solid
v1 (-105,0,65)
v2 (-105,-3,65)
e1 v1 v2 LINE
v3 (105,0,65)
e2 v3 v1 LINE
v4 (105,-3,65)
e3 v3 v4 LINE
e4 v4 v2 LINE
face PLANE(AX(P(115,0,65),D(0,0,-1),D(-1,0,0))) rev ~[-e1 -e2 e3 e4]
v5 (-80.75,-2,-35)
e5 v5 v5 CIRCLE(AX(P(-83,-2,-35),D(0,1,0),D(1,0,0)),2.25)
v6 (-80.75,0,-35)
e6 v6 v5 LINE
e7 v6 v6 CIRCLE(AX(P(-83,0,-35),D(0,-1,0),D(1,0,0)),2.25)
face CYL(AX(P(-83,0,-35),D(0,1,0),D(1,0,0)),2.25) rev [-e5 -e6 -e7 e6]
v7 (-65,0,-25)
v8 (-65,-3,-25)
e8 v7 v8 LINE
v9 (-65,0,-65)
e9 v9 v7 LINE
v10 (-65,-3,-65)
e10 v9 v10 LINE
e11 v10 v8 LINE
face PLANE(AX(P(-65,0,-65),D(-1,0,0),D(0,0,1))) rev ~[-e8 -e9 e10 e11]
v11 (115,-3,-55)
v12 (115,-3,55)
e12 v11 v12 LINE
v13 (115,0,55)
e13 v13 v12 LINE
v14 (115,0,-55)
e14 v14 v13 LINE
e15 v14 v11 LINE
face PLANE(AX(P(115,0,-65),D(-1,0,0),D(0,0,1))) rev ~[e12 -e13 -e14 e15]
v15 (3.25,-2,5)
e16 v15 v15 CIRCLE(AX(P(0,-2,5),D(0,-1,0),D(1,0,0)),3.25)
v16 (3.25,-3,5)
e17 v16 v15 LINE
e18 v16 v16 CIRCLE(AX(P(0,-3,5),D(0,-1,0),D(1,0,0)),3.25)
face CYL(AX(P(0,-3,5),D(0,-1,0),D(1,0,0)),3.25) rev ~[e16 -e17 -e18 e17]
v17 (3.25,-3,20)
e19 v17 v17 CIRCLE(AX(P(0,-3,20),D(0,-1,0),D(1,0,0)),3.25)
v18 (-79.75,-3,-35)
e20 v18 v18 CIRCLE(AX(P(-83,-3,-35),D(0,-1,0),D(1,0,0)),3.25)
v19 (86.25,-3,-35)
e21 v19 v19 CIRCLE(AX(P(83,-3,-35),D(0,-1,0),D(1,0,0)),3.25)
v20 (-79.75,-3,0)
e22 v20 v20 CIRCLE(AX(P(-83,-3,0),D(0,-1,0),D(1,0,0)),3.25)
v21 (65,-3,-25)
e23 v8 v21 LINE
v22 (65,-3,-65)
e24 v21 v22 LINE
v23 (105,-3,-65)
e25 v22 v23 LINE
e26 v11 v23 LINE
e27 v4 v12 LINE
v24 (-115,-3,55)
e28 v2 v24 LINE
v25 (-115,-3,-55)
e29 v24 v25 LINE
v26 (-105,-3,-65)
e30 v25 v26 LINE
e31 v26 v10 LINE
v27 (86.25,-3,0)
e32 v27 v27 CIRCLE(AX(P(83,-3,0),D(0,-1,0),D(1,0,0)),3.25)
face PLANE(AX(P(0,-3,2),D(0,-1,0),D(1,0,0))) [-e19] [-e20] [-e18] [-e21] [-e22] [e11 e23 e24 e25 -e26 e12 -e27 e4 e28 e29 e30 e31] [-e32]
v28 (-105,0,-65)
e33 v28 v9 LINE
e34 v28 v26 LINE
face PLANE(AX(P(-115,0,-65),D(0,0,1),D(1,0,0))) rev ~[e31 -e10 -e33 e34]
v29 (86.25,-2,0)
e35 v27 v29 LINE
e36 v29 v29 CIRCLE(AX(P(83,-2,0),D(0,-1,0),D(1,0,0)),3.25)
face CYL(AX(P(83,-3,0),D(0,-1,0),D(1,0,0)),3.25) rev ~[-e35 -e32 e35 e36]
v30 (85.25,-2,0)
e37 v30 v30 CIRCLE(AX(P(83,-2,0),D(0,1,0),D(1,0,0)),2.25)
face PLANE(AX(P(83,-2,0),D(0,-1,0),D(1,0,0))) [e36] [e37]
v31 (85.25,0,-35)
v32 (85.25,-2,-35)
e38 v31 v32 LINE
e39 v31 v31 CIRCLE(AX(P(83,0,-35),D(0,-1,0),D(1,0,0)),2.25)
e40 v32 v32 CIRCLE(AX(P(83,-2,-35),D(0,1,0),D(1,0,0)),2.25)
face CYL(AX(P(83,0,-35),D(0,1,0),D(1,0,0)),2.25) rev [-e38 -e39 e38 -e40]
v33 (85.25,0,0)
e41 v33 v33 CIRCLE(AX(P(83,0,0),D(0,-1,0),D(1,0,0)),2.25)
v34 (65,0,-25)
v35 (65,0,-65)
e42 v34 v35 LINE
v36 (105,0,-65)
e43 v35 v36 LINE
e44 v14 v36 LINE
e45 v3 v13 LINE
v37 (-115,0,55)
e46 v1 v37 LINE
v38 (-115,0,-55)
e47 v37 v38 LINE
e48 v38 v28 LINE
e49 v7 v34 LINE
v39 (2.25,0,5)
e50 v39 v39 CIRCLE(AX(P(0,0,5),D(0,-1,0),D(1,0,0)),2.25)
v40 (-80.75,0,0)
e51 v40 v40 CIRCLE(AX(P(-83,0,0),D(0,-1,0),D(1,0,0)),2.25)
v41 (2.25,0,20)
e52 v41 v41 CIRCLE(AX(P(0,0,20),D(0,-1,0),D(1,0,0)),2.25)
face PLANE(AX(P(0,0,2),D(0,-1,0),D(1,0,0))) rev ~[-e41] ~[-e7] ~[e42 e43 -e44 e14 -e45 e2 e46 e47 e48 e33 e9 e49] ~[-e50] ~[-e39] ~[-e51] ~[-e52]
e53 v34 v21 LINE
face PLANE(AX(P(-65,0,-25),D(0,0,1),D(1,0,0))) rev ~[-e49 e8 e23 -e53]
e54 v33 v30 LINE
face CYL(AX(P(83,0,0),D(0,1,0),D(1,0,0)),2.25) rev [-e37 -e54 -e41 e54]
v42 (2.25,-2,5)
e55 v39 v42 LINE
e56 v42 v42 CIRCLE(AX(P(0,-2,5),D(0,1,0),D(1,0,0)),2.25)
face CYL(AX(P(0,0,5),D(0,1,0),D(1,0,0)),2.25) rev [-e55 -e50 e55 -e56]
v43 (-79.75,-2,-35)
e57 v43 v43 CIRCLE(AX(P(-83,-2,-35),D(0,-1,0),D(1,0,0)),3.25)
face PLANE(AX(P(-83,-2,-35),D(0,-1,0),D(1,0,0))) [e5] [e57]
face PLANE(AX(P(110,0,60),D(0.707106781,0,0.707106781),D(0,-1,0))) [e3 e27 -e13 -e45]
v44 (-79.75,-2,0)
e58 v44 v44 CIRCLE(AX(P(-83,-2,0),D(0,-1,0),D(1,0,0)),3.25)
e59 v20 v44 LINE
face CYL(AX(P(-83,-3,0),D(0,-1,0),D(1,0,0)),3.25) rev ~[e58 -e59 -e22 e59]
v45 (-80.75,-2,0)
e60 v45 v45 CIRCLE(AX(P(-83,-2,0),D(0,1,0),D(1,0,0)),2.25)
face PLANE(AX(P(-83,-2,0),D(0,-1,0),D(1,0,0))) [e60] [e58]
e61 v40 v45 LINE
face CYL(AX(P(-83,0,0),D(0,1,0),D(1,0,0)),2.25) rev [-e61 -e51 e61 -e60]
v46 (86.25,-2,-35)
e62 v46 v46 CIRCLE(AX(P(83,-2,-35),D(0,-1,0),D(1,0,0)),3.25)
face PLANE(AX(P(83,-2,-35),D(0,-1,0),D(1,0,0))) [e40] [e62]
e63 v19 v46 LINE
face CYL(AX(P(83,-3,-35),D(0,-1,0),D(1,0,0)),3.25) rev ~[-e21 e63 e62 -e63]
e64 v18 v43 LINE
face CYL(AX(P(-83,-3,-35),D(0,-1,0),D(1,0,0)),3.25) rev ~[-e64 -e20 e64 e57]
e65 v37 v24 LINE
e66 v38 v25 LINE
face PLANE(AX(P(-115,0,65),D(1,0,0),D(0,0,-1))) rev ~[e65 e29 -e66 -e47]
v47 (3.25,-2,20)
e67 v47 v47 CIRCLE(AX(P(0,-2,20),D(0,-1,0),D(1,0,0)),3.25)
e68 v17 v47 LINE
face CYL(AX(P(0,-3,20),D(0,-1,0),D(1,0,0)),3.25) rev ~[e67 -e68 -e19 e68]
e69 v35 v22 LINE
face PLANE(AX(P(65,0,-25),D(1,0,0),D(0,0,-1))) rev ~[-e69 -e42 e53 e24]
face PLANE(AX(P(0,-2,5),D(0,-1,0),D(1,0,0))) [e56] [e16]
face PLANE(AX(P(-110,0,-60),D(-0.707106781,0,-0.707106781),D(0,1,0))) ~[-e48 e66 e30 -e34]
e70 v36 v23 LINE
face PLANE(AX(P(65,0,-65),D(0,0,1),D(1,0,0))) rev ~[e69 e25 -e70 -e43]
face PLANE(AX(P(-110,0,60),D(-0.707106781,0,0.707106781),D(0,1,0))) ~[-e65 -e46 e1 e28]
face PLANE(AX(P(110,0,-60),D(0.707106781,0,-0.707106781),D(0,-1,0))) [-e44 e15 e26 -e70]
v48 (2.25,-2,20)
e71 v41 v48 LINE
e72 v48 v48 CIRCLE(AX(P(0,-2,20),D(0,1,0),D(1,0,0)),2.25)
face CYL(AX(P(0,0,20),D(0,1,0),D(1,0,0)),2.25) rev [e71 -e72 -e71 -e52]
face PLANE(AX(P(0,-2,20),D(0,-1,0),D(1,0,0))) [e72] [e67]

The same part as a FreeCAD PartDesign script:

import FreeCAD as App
import Part
import Sketcher

V = App.Vector


def edges_at(feature, points):
    """Names of the edges that pass closest to the given points."""
    edges = feature.Shape.Edges
    near = lambda p: min(range(len(edges)), key=lambda i: edges[i].distToShape(Part.Vertex(*p))[0])
    return sorted({f"Edge{near(p) + 1}" for p in points})

doc = App.newDocument("Part")
params = doc.addObject("Spreadsheet::Sheet", "Params")
for row, (alias, value) in enumerate([
    ("sketch1_diameter", "4.5 mm"),
    ("sketch1_width", "230 mm"),
    ("sketch1_width2", "50 mm"),
    ("sketch1_height", "40 mm"),
    ("pad1_length", "3 mm"),
    ("chamfer_size", "10 mm"),
    ("sketch2_diameter", "6.5 mm"),
    ("pocket1_length", "1 mm"),
], start=1):
    params.set(f"A{row}", alias)
    params.set(f"B{row}", "=" + value)
    params.setAlias(f"B{row}", alias)

body = doc.addObject("PartDesign::Body", "Body")

# Sketch on XZ plane
sketch1 = body.newObject("Sketcher::SketchObject", "Sketch")
sketch1.AttachmentSupport = (doc.getObject("XZ_Plane"), [""])
sketch1.MapMode = "FlatFace"
sketch1.addGeometry(Part.LineSegment(V(115, 65, 0), V(-115, 65, 0)), False)
sketch1.addGeometry(Part.LineSegment(V(-115, 65, 0), V(-115, -65, 0)), False)
sketch1.addGeometry(Part.LineSegment(V(-115, -65, 0), V(-65, -65, 0)), False)
sketch1.addGeometry(Part.LineSegment(V(-65, -65, 0), V(-65, -25, 0)), False)
sketch1.addGeometry(Part.LineSegment(V(-65, -25, 0), V(65, -25, 0)), False)
sketch1.addGeometry(Part.LineSegment(V(65, -25, 0), V(65, -65, 0)), False)
sketch1.addGeometry(Part.LineSegment(V(65, -65, 0), V(115, -65, 0)), False)
sketch1.addGeometry(Part.LineSegment(V(115, -65, 0), V(115, 65, 0)), False)
sketch1.addGeometry(Part.Circle(V(-83, -35, 0), V(0, 0, 1), 2.25), False)
sketch1.addGeometry(Part.Circle(V(83, -35, 0), V(0, 0, 1), 2.25), False)
sketch1.addGeometry(Part.Circle(V(-83, 0, 0), V(0, 0, 1), 2.25), False)
sketch1.addGeometry(Part.Circle(V(0, 5, 0), V(0, 0, 1), 2.25), False)
sketch1.addGeometry(Part.Circle(V(83, 0, 0), V(0, 0, 1), 2.25), False)
sketch1.addGeometry(Part.Circle(V(0, 20, 0), V(0, 0, 1), 2.25), False)
sketch1.addConstraint(Sketcher.Constraint("Coincident", 0, 2, 1, 1))
sketch1.addConstraint(Sketcher.Constraint("Coincident", 1, 2, 2, 1))
sketch1.addConstraint(Sketcher.Constraint("Coincident", 2, 2, 3, 1))
sketch1.addConstraint(Sketcher.Constraint("Coincident", 3, 2, 4, 1))
sketch1.addConstraint(Sketcher.Constraint("Coincident", 4, 2, 5, 1))
sketch1.addConstraint(Sketcher.Constraint("Coincident", 5, 2, 6, 1))
sketch1.addConstraint(Sketcher.Constraint("Coincident", 6, 2, 7, 1))
sketch1.addConstraint(Sketcher.Constraint("Coincident", 7, 2, 0, 1))
sketch1.addConstraint(Sketcher.Constraint("Horizontal", 0))
sketch1.addConstraint(Sketcher.Constraint("Vertical", 1))
sketch1.addConstraint(Sketcher.Constraint("Horizontal", 2))
sketch1.addConstraint(Sketcher.Constraint("Vertical", 3))
sketch1.addConstraint(Sketcher.Constraint("Horizontal", 4))
sketch1.addConstraint(Sketcher.Constraint("Vertical", 5))
sketch1.addConstraint(Sketcher.Constraint("Horizontal", 6))
sketch1.addConstraint(Sketcher.Constraint("Vertical", 7))
sketch1.addConstraint(Sketcher.Constraint("Equal", 8, 9))
sketch1.addConstraint(Sketcher.Constraint("Equal", 9, 10))
sketch1.addConstraint(Sketcher.Constraint("Equal", 10, 11))
sketch1.addConstraint(Sketcher.Constraint("Equal", 11, 12))
sketch1.addConstraint(Sketcher.Constraint("Equal", 12, 13))
sketch1.addConstraint(Sketcher.Constraint("Symmetric", 10, 3, 12, 3, -1, 1))
sketch1.addConstraint(Sketcher.Constraint("Symmetric", 0, 2, 6, 2, -1, 1))
sketch1.addConstraint(Sketcher.Constraint("Symmetric", 8, 3, 9, 3, -2))
sketch1.addConstraint(Sketcher.Constraint("Symmetric", 2, 2, 5, 2, -2))
sketch1.addConstraint(Sketcher.Constraint("PointOnObject", 10, 3, -1))
sketch1.addConstraint(Sketcher.Constraint("PointOnObject", 11, 3, -2))
sketch1.addConstraint(Sketcher.Constraint("PointOnObject", 13, 3, -2))
sketch1.addConstraint(Sketcher.Constraint("Vertical", 8, 3, 10, 3))
sketch1.addConstraint(Sketcher.Constraint("Equal", 4, 1))
sketch1.addConstraint(Sketcher.Constraint("Diameter", 8, 4.5))
sketch1.addConstraint(Sketcher.Constraint("DistanceX", 0, 2, 0, 1, 230.0))
sketch1.addConstraint(Sketcher.Constraint("DistanceX", 2, 1, 2, 2, 50.0))
sketch1.addConstraint(Sketcher.Constraint("DistanceY", 3, 1, 3, 2, 40.0))
sketch1.addConstraint(Sketcher.Constraint("DistanceX", 8, 3, -1, 1, 83.0))
sketch1.addConstraint(Sketcher.Constraint("DistanceY", 8, 3, -1, 1, 35.0))
sketch1.addConstraint(Sketcher.Constraint("DistanceY", -1, 1, 11, 3, 5.0))
sketch1.addConstraint(Sketcher.Constraint("DistanceY", -1, 1, 13, 3, 20.0))
sketch1.setExpression("Constraints[30]", "Params.sketch1_diameter")
sketch1.setExpression("Constraints[31]", "Params.sketch1_width")
sketch1.setExpression("Constraints[32]", "Params.sketch1_width2")
sketch1.setExpression("Constraints[33]", "Params.sketch1_height")
pad1 = body.newObject("PartDesign::Pad", "Pad")
pad1.Profile = sketch1
pad1.setExpression("Length", "Params.pad1_length")
doc.recompute()

chamfer = body.newObject("PartDesign::Chamfer", "Chamfer")
chamfer.Base = (pad1, edges_at(pad1, [
    (-115, -1.5, 65),
    (115, -1.5, 65),
    (115, -1.5, -65),
    (-115, -1.5, -65),
]))
chamfer.setExpression("Size", "Params.chamfer_size")

# Sketch on XZ plane
sketch2 = body.newObject("Sketcher::SketchObject", "Sketch001")
sketch2.AttachmentSupport = (doc.getObject("XZ_Plane"), [""])
sketch2.MapMode = "FlatFace"
sketch2.AttachmentOffset = App.Placement(V(0, 0, 3), App.Rotation())
sketch2.addGeometry(Part.Circle(V(-83, 0, 0), V(0, 0, 1), 3.25), False)
sketch2.addGeometry(Part.Circle(V(-83, -35, 0), V(0, 0, 1), 3.25), False)
sketch2.addGeometry(Part.Circle(V(0, 20, 0), V(0, 0, 1), 3.25), False)
sketch2.addGeometry(Part.Circle(V(0, 5, 0), V(0, 0, 1), 3.25), False)
sketch2.addGeometry(Part.Circle(V(83, 0, 0), V(0, 0, 1), 3.25), False)
sketch2.addGeometry(Part.Circle(V(83, -35, 0), V(0, 0, 1), 3.25), False)
sketch2.addConstraint(Sketcher.Constraint("Equal", 0, 1))
sketch2.addConstraint(Sketcher.Constraint("Equal", 1, 2))
sketch2.addConstraint(Sketcher.Constraint("Equal", 2, 3))
sketch2.addConstraint(Sketcher.Constraint("Equal", 3, 4))
sketch2.addConstraint(Sketcher.Constraint("Equal", 4, 5))
sketch2.addConstraint(Sketcher.Constraint("Symmetric", 0, 3, 4, 3, -1, 1))
sketch2.addConstraint(Sketcher.Constraint("Symmetric", 1, 3, 5, 3, -2))
sketch2.addConstraint(Sketcher.Constraint("PointOnObject", 0, 3, -1))
sketch2.addConstraint(Sketcher.Constraint("PointOnObject", 2, 3, -2))
sketch2.addConstraint(Sketcher.Constraint("PointOnObject", 3, 3, -2))
sketch2.addConstraint(Sketcher.Constraint("Vertical", 0, 3, 1, 3))
sketch2.addConstraint(Sketcher.Constraint("Diameter", 0, 6.5))
sketch2.addConstraint(Sketcher.Constraint("DistanceX", 0, 3, -1, 1, 83.0))
sketch2.addConstraint(Sketcher.Constraint("DistanceY", 1, 3, -1, 1, 35.0))
sketch2.addConstraint(Sketcher.Constraint("DistanceY", -1, 1, 2, 3, 20.0))
sketch2.addConstraint(Sketcher.Constraint("DistanceY", -1, 1, 3, 3, 5.0))
sketch2.setExpression("Constraints[11]", "Params.sketch2_diameter")
pocket1 = body.newObject("PartDesign::Pocket", "Pocket")
pocket1.Profile = sketch2
pocket1.setExpression("Length", "Params.pocket1_length")

doc.recompute()
